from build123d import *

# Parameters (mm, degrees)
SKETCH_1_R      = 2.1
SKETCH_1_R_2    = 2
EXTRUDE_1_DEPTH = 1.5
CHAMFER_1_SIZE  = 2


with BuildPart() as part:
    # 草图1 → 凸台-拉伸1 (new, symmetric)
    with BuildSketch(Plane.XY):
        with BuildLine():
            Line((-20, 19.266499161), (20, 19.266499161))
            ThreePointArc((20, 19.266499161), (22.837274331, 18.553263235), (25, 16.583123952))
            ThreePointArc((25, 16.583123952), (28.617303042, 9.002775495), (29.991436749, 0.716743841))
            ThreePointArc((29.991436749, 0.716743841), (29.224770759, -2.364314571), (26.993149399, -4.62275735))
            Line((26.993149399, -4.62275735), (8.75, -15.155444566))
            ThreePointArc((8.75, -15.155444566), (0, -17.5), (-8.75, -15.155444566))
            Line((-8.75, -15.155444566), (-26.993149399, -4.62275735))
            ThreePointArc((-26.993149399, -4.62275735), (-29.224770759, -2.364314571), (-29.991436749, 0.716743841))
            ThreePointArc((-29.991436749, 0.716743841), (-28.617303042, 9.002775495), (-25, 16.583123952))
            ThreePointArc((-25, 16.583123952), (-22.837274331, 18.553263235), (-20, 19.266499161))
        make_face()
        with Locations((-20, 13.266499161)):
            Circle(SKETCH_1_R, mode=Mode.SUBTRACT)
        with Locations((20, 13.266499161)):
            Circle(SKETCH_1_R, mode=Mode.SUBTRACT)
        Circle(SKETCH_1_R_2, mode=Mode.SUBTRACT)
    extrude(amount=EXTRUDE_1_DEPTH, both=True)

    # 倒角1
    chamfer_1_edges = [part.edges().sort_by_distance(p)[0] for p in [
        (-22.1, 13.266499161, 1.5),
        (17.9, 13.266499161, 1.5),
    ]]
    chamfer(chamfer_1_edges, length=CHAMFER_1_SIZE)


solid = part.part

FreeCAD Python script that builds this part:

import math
import FreeCAD as App
import Part
import Sketcher
from FreeCAD import Vector
Q = App.Units.Quantity


def edges_at(feature, points):
    """Names of the edges that pass closest to the given points."""
    edges = feature.Shape.Edges
    near = lambda p: min(range(len(edges)), key=lambda i: edges[i].distToShape(Part.Vertex(*p))[0])
    return sorted({f"Edge{near(p) + 1}" for p in points})

doc = App.newDocument("Part")
body = doc.addObject("PartDesign::Body", "Body")

# Sketch on XY plane
sketch1 = body.newObject("Sketcher::SketchObject", "Sketch")
sketch1.AttachmentSupport = (doc.getObject("XY_Plane"), [""])
sketch1.MapMode = "FlatFace"
sketch1.addGeometry([
    Part.LineSegment(Vector(20, 19.3, 0), Vector(-20, 19.3, 0)),  # 0
    Part.ArcOfCircle(Part.Circle(Vector(-20, 13.3, 0), Vector(0, 0, 1), 6), math.radians(90), math.radians(146)),  # 1
    Part.ArcOfCircle(Part.Circle(Vector(0, 0, 0), Vector(0, 0, 1), 30), math.radians(146), math.radians(179)),  # 2
    Part.ArcOfCircle(Part.Circle(Vector(-24, 0.6, 0), Vector(0, 0, 1), 6), math.radians(179), math.radians(240)),  # 3
    Part.LineSegment(Vector(-27, -4.6, 0), Vector(-8.8, -15.2, 0)),  # 4
    Part.ArcOfCircle(Part.Circle(Vector(0, 0, 0), Vector(0, 0, 1), 17.5), math.radians(-120), math.radians(-60)),  # 5
    Part.LineSegment(Vector(8.8, -15.2, 0), Vector(27, -4.6, 0)),  # 6
    Part.ArcOfCircle(Part.Circle(Vector(24, 0.6, 0), Vector(0, 0, 1), 6), math.radians(-60), math.radians(1)),  # 7
    Part.ArcOfCircle(Part.Circle(Vector(0, 0, 0), Vector(0, 0, 1), 30), math.radians(1), math.radians(34)),  # 8
    Part.ArcOfCircle(Part.Circle(Vector(20, 13.3, 0), Vector(0, 0, 1), 6), math.radians(34), math.radians(90)),  # 9
    Part.Circle(Vector(0, 0, 0), Vector(0, 0, 1), 2),  # 10
    Part.Circle(Vector(20, 13.3, 0), Vector(0, 0, 1), 2.1),  # 11
    Part.Circle(Vector(-20, 13.3, 0), Vector(0, 0, 1), 2.1),  # 12
], False)
sketch1.addConstraint([
    Sketcher.Constraint("Tangent", 0, 2, 1, 1),
    Sketcher.Constraint("Tangent", 1, 2, 2, 1),
    Sketcher.Constraint("Tangent", 2, 2, 3, 1),
    Sketcher.Constraint("Tangent", 3, 2, 4, 1),
    Sketcher.Constraint("Tangent", 4, 2, 5, 1),
    Sketcher.Constraint("Tangent", 5, 2, 6, 1),
    Sketcher.Constraint("Tangent", 6, 2, 7, 1),
    Sketcher.Constraint("Tangent", 7, 2, 8, 1),
    Sketcher.Constraint("Tangent", 8, 2, 9, 1),
    Sketcher.Constraint("Tangent", 9, 2, 0, 1),
    Sketcher.Constraint("Horizontal", 0),
    Sketcher.Constraint("Coincident", 2, 3, -1, 1),
    Sketcher.Constraint("Coincident", 5, 3, -1, 1),
    Sketcher.Constraint("Coincident", 8, 3, -1, 1),
    Sketcher.Constraint("Coincident", 10, 3, -1, 1),
    Sketcher.Constraint("Coincident", 11, 3, 9, 3),
    Sketcher.Constraint("Coincident", 12, 3, 1, 3),
    Sketcher.Constraint("Equal", 1, 3),
    Sketcher.Constraint("Equal", 3, 7),
    Sketcher.Constraint("Equal", 2, 8),
    Sketcher.Constraint("Equal", 7, 9),
    Sketcher.Constraint("Equal", 11, 12),
    Sketcher.Constraint("Horizontal", 3, 3, 7, 3),
    Sketcher.Constraint("Diameter", 10, Q("4 mm")),
    Sketcher.Constraint("Radius", 1, Q("6 mm")),
    Sketcher.Constraint("Radius", 2, Q("30 mm")),
    Sketcher.Constraint("Diameter", 11, Q("4.2 mm")),
    Sketcher.Constraint("Radius", 5, Q("17.5 mm")),
    Sketcher.Constraint("DistanceX", 0, 2, 0, 1, Q("40 mm")),
    Sketcher.Constraint("Angle", 4, Q("-30 deg")),
])
pad1 = body.newObject("PartDesign::Pad", "Pad")
pad1.Profile = sketch1
pad1.Length = 3
pad1.Midplane = True
doc.recompute()

chamfer = body.newObject("PartDesign::Chamfer", "Chamfer")
chamfer.Base = (pad1, edges_at(pad1, [(-22.1, 13.266, 1.5), (17.9, 13.266, 1.5)]))
chamfer.Size = 2

doc.recompute()
